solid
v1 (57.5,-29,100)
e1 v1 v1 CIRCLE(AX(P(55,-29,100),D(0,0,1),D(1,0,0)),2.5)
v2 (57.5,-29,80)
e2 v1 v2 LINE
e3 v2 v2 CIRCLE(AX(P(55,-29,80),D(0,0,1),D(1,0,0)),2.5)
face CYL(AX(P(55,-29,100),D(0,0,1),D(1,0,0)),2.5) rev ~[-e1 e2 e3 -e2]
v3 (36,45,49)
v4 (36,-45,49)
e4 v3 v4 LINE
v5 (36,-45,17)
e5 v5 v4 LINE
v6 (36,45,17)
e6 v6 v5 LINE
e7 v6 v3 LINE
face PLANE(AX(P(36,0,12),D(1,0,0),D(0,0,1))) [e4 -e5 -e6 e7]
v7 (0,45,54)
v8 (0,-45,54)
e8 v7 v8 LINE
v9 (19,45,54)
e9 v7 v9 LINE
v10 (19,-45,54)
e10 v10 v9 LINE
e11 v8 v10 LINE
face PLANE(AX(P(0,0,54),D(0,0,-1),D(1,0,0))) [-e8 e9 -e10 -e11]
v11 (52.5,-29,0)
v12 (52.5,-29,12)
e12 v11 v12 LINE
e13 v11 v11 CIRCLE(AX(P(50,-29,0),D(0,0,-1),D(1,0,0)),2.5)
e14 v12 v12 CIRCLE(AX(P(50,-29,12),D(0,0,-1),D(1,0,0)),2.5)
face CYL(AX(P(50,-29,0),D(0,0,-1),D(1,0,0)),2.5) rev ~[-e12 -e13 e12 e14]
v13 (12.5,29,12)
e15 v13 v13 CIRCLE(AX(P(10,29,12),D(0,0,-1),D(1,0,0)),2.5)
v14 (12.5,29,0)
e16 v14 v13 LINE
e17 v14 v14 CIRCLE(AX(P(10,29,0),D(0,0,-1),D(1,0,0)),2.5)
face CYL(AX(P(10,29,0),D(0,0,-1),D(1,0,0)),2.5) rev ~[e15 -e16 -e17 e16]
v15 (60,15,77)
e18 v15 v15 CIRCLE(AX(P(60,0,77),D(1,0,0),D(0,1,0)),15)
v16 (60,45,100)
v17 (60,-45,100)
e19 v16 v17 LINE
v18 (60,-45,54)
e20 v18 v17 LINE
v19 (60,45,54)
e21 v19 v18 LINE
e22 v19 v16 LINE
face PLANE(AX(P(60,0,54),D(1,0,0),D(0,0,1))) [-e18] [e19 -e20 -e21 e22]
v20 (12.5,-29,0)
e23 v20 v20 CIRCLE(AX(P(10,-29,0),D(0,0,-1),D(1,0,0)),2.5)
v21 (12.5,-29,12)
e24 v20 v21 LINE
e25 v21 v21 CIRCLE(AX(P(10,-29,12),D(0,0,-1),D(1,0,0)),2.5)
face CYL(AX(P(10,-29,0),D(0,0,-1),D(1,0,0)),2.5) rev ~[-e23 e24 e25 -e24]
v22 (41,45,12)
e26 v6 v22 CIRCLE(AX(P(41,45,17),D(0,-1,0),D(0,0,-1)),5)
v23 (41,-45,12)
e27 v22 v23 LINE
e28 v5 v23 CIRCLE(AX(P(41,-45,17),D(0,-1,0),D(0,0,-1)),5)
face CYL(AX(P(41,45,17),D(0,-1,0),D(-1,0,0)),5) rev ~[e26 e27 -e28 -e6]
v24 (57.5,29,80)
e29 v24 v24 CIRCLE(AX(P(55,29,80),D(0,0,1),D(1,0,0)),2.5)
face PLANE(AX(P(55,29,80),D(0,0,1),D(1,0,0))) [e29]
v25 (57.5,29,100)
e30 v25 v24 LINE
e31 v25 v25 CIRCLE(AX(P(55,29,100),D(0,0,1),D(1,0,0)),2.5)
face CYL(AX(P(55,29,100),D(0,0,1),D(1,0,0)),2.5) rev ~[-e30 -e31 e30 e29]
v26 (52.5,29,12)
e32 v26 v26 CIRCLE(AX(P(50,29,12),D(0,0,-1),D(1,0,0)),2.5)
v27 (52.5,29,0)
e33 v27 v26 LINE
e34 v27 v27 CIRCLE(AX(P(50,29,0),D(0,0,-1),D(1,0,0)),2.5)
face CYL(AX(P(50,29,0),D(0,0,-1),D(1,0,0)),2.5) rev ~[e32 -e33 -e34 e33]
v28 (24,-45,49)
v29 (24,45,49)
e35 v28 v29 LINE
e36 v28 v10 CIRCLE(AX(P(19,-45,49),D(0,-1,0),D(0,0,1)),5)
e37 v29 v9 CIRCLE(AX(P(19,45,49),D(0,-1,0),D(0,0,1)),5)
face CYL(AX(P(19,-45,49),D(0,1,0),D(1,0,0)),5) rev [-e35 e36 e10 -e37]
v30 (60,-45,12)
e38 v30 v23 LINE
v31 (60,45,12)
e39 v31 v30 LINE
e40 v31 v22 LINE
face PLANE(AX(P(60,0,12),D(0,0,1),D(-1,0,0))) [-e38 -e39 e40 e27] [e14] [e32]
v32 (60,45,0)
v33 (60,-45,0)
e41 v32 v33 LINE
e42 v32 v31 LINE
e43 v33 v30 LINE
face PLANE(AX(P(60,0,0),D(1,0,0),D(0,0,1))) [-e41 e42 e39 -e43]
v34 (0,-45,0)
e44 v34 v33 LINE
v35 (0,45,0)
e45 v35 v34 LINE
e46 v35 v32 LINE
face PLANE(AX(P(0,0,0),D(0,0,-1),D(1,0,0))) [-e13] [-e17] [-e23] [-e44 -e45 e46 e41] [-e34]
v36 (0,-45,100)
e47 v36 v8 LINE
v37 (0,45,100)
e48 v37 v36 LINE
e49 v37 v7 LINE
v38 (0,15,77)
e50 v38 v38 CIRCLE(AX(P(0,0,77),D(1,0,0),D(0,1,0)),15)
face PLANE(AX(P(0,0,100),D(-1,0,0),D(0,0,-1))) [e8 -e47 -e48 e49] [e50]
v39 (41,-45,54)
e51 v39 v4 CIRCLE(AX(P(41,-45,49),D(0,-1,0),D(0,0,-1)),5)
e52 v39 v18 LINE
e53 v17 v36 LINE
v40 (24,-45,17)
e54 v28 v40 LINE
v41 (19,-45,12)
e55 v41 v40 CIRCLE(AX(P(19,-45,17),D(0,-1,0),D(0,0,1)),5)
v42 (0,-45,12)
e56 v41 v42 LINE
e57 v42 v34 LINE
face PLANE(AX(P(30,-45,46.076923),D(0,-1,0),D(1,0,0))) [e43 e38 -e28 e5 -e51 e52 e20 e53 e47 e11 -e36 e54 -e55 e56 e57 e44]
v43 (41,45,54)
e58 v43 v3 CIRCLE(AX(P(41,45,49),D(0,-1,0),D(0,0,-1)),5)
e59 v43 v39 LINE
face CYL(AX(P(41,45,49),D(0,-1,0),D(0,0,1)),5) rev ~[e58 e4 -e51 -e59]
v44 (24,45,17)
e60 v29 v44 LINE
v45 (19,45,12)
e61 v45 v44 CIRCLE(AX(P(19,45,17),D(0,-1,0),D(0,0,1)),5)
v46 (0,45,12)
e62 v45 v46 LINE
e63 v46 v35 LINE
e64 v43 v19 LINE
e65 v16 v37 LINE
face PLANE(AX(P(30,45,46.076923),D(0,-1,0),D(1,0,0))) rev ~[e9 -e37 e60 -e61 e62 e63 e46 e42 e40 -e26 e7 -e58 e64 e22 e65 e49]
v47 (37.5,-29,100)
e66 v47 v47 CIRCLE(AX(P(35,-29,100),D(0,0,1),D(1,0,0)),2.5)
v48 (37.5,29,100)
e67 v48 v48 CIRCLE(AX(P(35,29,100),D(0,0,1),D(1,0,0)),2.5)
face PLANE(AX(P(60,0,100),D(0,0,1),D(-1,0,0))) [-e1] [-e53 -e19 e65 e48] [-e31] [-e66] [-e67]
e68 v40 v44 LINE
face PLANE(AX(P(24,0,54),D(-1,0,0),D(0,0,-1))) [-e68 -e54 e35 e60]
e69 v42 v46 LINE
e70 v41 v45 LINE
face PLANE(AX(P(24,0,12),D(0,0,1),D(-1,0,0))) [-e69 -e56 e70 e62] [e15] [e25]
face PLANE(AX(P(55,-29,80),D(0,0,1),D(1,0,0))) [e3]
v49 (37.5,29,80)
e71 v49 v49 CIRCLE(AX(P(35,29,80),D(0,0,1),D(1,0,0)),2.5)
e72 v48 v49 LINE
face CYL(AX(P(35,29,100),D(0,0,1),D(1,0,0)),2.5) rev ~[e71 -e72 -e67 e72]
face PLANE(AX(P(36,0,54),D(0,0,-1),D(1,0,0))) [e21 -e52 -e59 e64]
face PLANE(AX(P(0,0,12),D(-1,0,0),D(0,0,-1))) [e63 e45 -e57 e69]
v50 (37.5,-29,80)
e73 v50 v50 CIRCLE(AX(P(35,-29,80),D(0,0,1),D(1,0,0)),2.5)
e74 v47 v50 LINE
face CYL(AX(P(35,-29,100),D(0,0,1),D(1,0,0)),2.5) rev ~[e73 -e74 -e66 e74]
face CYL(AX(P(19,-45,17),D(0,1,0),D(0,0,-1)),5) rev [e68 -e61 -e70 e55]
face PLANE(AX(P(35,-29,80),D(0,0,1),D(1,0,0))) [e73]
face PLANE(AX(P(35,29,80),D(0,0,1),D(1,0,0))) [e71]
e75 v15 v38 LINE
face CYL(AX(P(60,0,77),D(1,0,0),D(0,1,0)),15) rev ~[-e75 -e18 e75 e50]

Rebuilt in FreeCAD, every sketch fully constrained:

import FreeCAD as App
import Part
import Sketcher

V = App.Vector
Q = App.Units.Quantity


def edges_at(feature, points):
    """Names of the edges that pass closest to the given points."""
    edges = feature.Shape.Edges
    near = lambda p: min(range(len(edges)), key=lambda i: edges[i].distToShape(Part.Vertex(*p))[0])
    return sorted({f"Edge{near(p) + 1}" for p in points})


def add_polygon(sketch, points):
    """Adds a closed chain of lines whose ends are joined by coincident constraints."""
    first, n = sketch.GeometryCount, len(points)
    for a, b in zip(points, points[1:] + points[:1]):
        sketch.addGeometry(Part.LineSegment(App.Vector(*a, 0), App.Vector(*b, 0)), False)
    for i in range(n):
        sketch.addConstraint(Sketcher.Constraint("Coincident", first + i, 2, first + (i + 1) % n, 1))

doc = App.newDocument("Part")
body = doc.addObject("PartDesign::Body", "Body")

# Sketch on XZ plane
sketch1 = body.newObject("Sketcher::SketchObject", "Sketch")
sketch1.AttachmentSupport = (doc.getObject("XZ_Plane"), [""])
sketch1.MapMode = "FlatFace"
add_polygon(sketch1, [(0, 12), (0, 0), (60, 0), (60, 12), (36, 12), (36, 54), (60, 54), (60, 100), (0, 100), (0, 54), (24, 54), (24, 12)])  # lines 0-11
sketch1.addConstraint([
    Sketcher.Constraint("Vertical", 0),
    Sketcher.Constraint("Horizontal", 1),
    Sketcher.Constraint("Vertical", 2),
    Sketcher.Constraint("Horizontal", 3),
    Sketcher.Constraint("Vertical", 4),
    Sketcher.Constraint("Horizontal", 5),
    Sketcher.Constraint("Vertical", 6),
    Sketcher.Constraint("Horizontal", 7),
    Sketcher.Constraint("Vertical", 8),
    Sketcher.Constraint("Horizontal", 9),
    Sketcher.Constraint("Vertical", 10),
    Sketcher.Constraint("Horizontal", 11),
    Sketcher.Constraint("Coincident", 0, 2, -1, 1),
    Sketcher.Constraint("PointOnObject", 7, 2, -2),
    Sketcher.Constraint("Horizontal", 5, 2, 8, 2),
    Sketcher.Constraint("Horizontal", 3, 2, 10, 2),
    Sketcher.Constraint("Vertical", 2, 2, 5, 2),
    Sketcher.Constraint("Equal", 5, 9),
    Sketcher.Constraint("DistanceX", 1, 1, 1, 2, Q("60 mm")),
    Sketcher.Constraint("DistanceX", 3, 2, 3, 1, Q("24 mm")),
    Sketcher.Constraint("DistanceY", 0, 2, 0, 1, Q("12 mm")),
    Sketcher.Constraint("DistanceY", 4, 1, 4, 2, Q("42 mm")),
    Sketcher.Constraint("DistanceY", 6, 1, 6, 2, Q("46 mm")),
])
pad1 = body.newObject("PartDesign::Pad", "Pad")
pad1.Profile = sketch1
pad1.Type = "TwoLengths"
pad1.Length = 45
pad1.Length2 = 45
doc.recompute()

fillet = body.newObject("PartDesign::Fillet", "Fillet")
fillet.Base = (pad1, edges_at(pad1, [
    (36, 0, 54),
    (36, 0, 12),
    (24, 0, 12),
    (24, 0, 54),
]))
fillet.Radius = 5

# Sketch on YZ plane
sketch2 = body.newObject("Sketcher::SketchObject", "Sketch001")
sketch2.AttachmentSupport = (doc.getObject("YZ_Plane"), [""])
sketch2.MapMode = "FlatFace"
sketch2.AttachmentOffset = App.Placement(V(0, 0, 60), App.Rotation())
sketch2.addGeometry(Part.Circle(V(0, 77, 0), V(0, 0, 1), 15), False)
sketch2.addConstraint([
    Sketcher.Constraint("PointOnObject", 0, 3, -2),
    Sketcher.Constraint("Diameter", 0, Q("30 mm")),
    Sketcher.Constraint("DistanceY", -1, 1, 0, 3, Q("77 mm")),
])
pocket1 = body.newObject("PartDesign::Pocket", "Pocket")
pocket1.Profile = sketch2
pocket1.Length = 60

# Sketch on XY plane
sketch3 = body.newObject("Sketcher::SketchObject", "Sketch002")
sketch3.AttachmentSupport = (doc.getObject("XY_Plane"), [""])
sketch3.MapMode = "FlatFace"
sketch3.addGeometry([
    Part.Circle(V(10, -29, 0), V(0, 0, 1), 2.5),
    Part.Circle(V(10, 29, 0), V(0, 0, 1), 2.5),
    Part.Circle(V(50, 29, 0), V(0, 0, 1), 2.5),
    Part.Circle(V(50, -29, 0), V(0, 0, 1), 2.5),
], False)
sketch3.addConstraint([
    Sketcher.Constraint("Equal", 0, 1),
    Sketcher.Constraint("Equal", 1, 2),
    Sketcher.Constraint("Equal", 2, 3),
    Sketcher.Constraint("Symmetric", 0, 3, 1, 3, -1),
    Sketcher.Constraint("Symmetric", 2, 3, 3, 3, -1),
    Sketcher.Constraint("Horizontal", 1, 3, 2, 3),
    Sketcher.Constraint("Diameter", 0, Q("5 mm")),
    Sketcher.Constraint("DistanceX", -1, 1, 0, 3, Q("10 mm")),
    Sketcher.Constraint("DistanceY", 0, 3, -1, 1, Q("29 mm")),
    Sketcher.Constraint("DistanceX", -1, 1, 2, 3, Q("50 mm")),
])
pocket2 = body.newObject("PartDesign::Pocket", "Pocket001")
pocket2.Profile = sketch3
pocket2.Length = 12
pocket2.Reversed = True

# Sketch on XY plane
sketch4 = body.newObject("Sketcher::SketchObject", "Sketch003")
sketch4.AttachmentSupport = (doc.getObject("XY_Plane"), [""])
sketch4.MapMode = "FlatFace"
sketch4.AttachmentOffset = App.Placement(V(0, 0, 100), App.Rotation())
sketch4.addGeometry([
    Part.Circle(V(35, 29, 0), V(0, 0, 1), 2.5),
    Part.Circle(V(55, 29, 0), V(0, 0, 1), 2.5),
    Part.Circle(V(55, -29, 0), V(0, 0, 1), 2.5),
    Part.Circle(V(35, -29, 0), V(0, 0, 1), 2.5),
], False)
sketch4.addConstraint([
    Sketcher.Constraint("Equal", 0, 1),
    Sketcher.Constraint("Equal", 1, 2),
    Sketcher.Constraint("Equal", 2, 3),
    Sketcher.Constraint("Symmetric", 1, 3, 2, 3, -1),
    Sketcher.Constraint("Symmetric", 0, 3, 3, 3, -1),
    Sketcher.Constraint("Horizontal", 0, 3, 1, 3),
    Sketcher.Constraint("Diameter", 0, Q("5 mm")),
    Sketcher.Constraint("DistanceX", -1, 1, 0, 3, Q("35 mm")),
    Sketcher.Constraint("DistanceY", -1, 1, 0, 3, Q("29 mm")),
    Sketcher.Constraint("DistanceX", -1, 1, 1, 3, Q("55 mm")),
])
pocket3 = body.newObject("PartDesign::Pocket", "Pocket002")
pocket3.Profile = sketch4
pocket3.Length = 20

doc.recompute()
